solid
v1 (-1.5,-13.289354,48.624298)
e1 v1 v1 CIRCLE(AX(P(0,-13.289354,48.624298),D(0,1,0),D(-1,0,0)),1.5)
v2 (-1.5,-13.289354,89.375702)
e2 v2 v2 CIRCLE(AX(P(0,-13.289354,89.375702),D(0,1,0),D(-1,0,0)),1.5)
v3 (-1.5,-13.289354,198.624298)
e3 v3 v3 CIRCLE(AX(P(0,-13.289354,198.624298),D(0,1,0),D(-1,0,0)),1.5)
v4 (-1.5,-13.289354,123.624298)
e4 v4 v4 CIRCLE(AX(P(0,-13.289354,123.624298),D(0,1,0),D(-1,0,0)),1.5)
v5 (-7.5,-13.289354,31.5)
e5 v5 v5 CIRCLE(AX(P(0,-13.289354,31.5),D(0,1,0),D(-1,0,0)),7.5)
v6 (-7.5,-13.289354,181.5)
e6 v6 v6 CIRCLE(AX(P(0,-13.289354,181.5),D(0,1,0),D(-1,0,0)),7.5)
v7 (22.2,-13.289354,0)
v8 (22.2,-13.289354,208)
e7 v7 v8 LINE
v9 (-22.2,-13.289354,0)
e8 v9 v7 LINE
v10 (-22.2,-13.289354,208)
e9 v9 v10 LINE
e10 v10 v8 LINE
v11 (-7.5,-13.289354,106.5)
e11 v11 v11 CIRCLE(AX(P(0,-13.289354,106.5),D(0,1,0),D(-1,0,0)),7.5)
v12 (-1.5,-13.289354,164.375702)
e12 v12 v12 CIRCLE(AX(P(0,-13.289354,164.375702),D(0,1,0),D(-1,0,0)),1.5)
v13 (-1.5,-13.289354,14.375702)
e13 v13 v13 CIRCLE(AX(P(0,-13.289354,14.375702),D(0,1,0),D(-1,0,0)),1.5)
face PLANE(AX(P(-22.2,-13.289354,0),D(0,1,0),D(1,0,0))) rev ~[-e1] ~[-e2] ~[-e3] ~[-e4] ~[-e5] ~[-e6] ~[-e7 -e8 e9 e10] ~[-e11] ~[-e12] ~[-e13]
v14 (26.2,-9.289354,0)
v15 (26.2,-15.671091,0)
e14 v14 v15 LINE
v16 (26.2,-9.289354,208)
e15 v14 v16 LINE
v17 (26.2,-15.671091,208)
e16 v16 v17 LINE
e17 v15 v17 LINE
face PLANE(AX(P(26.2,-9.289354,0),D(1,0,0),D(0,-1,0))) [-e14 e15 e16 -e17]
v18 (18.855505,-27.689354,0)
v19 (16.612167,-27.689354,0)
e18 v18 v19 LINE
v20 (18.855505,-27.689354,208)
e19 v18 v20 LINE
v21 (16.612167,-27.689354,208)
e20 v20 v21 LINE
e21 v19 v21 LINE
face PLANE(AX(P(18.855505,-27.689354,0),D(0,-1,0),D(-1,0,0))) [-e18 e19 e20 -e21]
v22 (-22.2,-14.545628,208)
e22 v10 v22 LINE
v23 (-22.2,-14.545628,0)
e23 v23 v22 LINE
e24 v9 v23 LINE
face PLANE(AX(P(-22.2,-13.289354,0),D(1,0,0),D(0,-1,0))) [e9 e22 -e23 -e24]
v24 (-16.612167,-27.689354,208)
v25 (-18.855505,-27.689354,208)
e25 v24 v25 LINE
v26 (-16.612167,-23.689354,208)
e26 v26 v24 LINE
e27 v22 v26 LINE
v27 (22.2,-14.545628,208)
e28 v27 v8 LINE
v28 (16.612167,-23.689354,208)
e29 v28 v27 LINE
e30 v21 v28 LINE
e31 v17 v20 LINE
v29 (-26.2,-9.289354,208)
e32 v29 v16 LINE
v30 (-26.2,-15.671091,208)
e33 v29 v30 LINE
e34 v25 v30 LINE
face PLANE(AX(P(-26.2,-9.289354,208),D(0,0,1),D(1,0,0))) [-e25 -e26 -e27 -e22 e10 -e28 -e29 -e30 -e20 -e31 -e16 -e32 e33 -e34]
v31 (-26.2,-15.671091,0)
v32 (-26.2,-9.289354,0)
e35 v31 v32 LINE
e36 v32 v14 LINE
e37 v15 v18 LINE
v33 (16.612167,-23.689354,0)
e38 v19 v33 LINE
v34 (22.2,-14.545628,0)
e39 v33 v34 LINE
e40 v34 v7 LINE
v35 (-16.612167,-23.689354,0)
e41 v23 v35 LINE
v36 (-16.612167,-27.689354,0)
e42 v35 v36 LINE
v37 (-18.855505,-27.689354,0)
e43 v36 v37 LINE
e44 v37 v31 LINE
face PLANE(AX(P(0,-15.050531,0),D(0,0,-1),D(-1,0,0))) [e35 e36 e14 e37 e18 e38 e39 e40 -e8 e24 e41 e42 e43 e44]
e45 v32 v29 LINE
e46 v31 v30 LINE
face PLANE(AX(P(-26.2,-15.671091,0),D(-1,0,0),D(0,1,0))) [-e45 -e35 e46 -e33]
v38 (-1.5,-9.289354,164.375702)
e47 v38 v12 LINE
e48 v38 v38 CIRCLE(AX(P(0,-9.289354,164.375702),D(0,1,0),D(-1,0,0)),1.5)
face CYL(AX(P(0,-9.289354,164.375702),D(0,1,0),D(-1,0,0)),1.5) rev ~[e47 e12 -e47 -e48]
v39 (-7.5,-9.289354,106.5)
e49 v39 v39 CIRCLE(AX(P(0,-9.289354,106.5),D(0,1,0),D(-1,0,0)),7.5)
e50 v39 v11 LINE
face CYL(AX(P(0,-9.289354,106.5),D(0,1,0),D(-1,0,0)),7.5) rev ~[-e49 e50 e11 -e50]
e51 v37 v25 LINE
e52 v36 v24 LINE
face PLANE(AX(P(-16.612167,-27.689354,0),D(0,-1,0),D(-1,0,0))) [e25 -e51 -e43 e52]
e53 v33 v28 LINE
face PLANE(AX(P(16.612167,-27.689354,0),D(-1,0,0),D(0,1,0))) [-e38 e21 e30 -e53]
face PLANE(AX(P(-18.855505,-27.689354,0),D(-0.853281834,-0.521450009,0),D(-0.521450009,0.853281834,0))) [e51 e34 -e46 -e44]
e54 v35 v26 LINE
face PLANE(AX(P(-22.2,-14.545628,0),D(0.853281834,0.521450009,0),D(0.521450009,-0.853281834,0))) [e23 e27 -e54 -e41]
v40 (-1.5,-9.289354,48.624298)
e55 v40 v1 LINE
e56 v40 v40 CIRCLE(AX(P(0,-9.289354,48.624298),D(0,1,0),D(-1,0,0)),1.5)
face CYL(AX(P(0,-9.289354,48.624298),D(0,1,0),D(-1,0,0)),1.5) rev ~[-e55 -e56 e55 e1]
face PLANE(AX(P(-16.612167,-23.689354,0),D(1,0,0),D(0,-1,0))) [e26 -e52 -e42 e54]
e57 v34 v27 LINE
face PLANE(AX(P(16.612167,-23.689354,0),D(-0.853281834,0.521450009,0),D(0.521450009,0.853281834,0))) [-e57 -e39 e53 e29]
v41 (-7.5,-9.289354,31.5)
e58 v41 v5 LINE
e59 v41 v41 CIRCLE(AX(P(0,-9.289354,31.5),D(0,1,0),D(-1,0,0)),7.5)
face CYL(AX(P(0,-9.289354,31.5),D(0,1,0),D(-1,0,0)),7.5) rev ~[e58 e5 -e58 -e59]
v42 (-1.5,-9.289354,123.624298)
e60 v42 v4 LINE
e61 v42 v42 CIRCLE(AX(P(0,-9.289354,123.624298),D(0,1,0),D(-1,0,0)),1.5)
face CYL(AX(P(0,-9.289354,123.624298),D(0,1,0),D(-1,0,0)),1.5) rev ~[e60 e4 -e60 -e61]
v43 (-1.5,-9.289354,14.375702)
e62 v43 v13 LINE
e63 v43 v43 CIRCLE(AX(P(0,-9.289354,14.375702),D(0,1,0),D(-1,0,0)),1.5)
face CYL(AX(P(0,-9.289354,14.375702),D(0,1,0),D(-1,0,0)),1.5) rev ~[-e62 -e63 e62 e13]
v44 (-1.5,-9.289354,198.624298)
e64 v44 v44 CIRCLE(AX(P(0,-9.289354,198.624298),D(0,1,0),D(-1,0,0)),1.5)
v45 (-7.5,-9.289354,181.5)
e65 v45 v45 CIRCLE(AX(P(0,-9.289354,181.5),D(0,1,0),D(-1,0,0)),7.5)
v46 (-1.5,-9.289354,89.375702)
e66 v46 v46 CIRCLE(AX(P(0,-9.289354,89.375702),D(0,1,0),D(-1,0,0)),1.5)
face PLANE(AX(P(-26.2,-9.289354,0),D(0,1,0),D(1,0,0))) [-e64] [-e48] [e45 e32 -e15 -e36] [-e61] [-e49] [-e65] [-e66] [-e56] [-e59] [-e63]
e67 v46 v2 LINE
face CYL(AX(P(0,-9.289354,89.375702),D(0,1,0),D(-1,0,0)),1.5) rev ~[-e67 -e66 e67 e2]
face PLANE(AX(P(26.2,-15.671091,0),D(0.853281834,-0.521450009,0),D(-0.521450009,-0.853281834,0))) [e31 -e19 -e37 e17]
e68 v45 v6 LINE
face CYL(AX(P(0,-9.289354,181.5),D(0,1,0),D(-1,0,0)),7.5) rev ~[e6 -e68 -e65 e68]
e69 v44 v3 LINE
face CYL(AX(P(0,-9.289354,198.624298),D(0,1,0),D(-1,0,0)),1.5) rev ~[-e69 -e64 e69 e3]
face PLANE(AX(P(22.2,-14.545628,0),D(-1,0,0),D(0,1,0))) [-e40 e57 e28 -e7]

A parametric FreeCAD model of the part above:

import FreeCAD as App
import Part
import Sketcher
from FreeCAD import Vector
Q = App.Units.Quantity

doc = App.newDocument("Part")
body = doc.addObject("PartDesign::Body", "Body")

sketch1 = body.newObject("Sketcher::SketchObject", "Sketch")
sketch1.AttachmentSupport = (doc.getObject("XY_Plane"), [""])
sketch1.MapMode = "FlatFace"
sketch1.addGeometry([
    Part.LineSegment(Vector(-22.2, -13.3, 0), Vector(22.2, -13.3, 0)),
    Part.LineSegment(Vector(22.2, -13.3, 0), Vector(22.2, -14.5, 0)),
    Part.LineSegment(Vector(22.2, -14.5, 0), Vector(16.6, -23.7, 0)),
    Part.LineSegment(Vector(16.6, -23.7, 0), Vector(16.6, -27.7, 0)),
    Part.LineSegment(Vector(16.6, -27.7, 0), Vector(18.9, -27.7, 0)),
    Part.LineSegment(Vector(18.9, -27.7, 0), Vector(26.2, -15.7, 0)),
    Part.LineSegment(Vector(26.2, -15.7, 0), Vector(26.2, -9.3, 0)),
    Part.LineSegment(Vector(26.2, -9.3, 0), Vector(-26.2, -9.3, 0)),
    Part.LineSegment(Vector(-26.2, -9.3, 0), Vector(-26.2, -15.7, 0)),
    Part.LineSegment(Vector(-26.2, -15.7, 0), Vector(-18.9, -27.7, 0)),
    Part.LineSegment(Vector(-18.9, -27.7, 0), Vector(-16.6, -27.7, 0)),
    Part.LineSegment(Vector(-16.6, -27.7, 0), Vector(-16.6, -23.7, 0)),
    Part.LineSegment(Vector(-16.6, -23.7, 0), Vector(-22.2, -14.5, 0)),
    Part.LineSegment(Vector(-22.2, -14.5, 0), Vector(-22.2, -13.3, 0)),
], False)
sketch1.addConstraint([
    Sketcher.Constraint("Coincident", 0, 2, 1, 1),
    Sketcher.Constraint("Coincident", 1, 2, 2, 1),
    Sketcher.Constraint("Coincident", 2, 2, 3, 1),
    Sketcher.Constraint("Coincident", 3, 2, 4, 1),
    Sketcher.Constraint("Coincident", 4, 2, 5, 1),
    Sketcher.Constraint("Coincident", 5, 2, 6, 1),
    Sketcher.Constraint("Coincident", 6, 2, 7, 1),
    Sketcher.Constraint("Coincident", 7, 2, 8, 1),
    Sketcher.Constraint("Coincident", 8, 2, 9, 1),
    Sketcher.Constraint("Coincident", 9, 2, 10, 1),
    Sketcher.Constraint("Coincident", 10, 2, 11, 1),
    Sketcher.Constraint("Coincident", 11, 2, 12, 1),
    Sketcher.Constraint("Coincident", 12, 2, 13, 1),
    Sketcher.Constraint("Coincident", 13, 2, 0, 1),
    Sketcher.Constraint("Horizontal", 0),
    Sketcher.Constraint("Vertical", 1),
    Sketcher.Constraint("Vertical", 3),
    Sketcher.Constraint("Horizontal", 4),
    Sketcher.Constraint("Vertical", 6),
    Sketcher.Constraint("Horizontal", 7),
    Sketcher.Constraint("Vertical", 8),
    Sketcher.Constraint("Horizontal", 10),
    Sketcher.Constraint("Vertical", 11),
    Sketcher.Constraint("Vertical", 13),
    Sketcher.Constraint("Symmetric", 5, 2, 8, 2, -2),
    Sketcher.Constraint("Symmetric", 4, 2, 9, 2, -2),
    Sketcher.Constraint("Symmetric", 2, 2, 11, 2, -2),
    Sketcher.Constraint("Symmetric", 1, 2, 12, 2, -2),
    Sketcher.Constraint("Parallel", 2, 5),
    Sketcher.Constraint("DistanceY", 3, 2, 3, 1, Q("4 mm")),
    Sketcher.Constraint("DistanceX", 0, 1, 0, 2, Q("44.4 mm")),
    Sketcher.Constraint("DistanceX", 7, 2, 7, 1, Q("52.4 mm")),
    Sketcher.Constraint("DistanceY", 0, 2, 6, 2, Q("4 mm")),
    Sketcher.Constraint("DistanceY", 2, 2, 0, 2, Q("10.4 mm")),
    Sketcher.Constraint("DistanceX", 4, 1, 4, 2, Q("2.243338 mm")),
    Sketcher.Constraint("Distance", 2, Q("10.715952 mm")),
    Sketcher.Constraint("DistanceY", 1, 2, 1, 1, Q("1.256273 mm")),
    Sketcher.Constraint("DistanceY", 5, 2, -1, 1, Q("15.671091 mm")),
])
pad1 = body.newObject("PartDesign::Pad", "Pad")
pad1.Profile = sketch1
pad1.Length = 213

sketch2 = body.newObject("Sketcher::SketchObject", "Sketch001")
sketch2.AttachmentSupport = (doc.getObject("XZ_Plane"), [""])
sketch2.MapMode = "FlatFace"
sketch2.AttachmentOffset = App.Placement(Vector(0, 0, 9.289354), App.Rotation())
sketch2.addGeometry([
    Part.Circle(Vector(0, 32, 0), Vector(0, 0, 1), 8),
    Part.Circle(Vector(0, 106, 0), Vector(0, 0, 1), 8),
    Part.Circle(Vector(0, 182, 0), Vector(0, 0, 1), 8),
], False)
sketch2.addConstraint([
    Sketcher.Constraint("Equal", 0, 1),
    Sketcher.Constraint("Equal", 1, 2),
    Sketcher.Constraint("PointOnObject", 0, 3, -2),
    Sketcher.Constraint("PointOnObject", 1, 3, -2),
    Sketcher.Constraint("PointOnObject", 2, 3, -2),
    Sketcher.Constraint("Diameter", 0, Q("15 mm")),
    Sketcher.Constraint("DistanceY", 0, 3, 1, 3, Q("75 mm")),
    Sketcher.Constraint("DistanceY", 1, 3, 2, 3, Q("75 mm")),
    Sketcher.Constraint("DistanceY", -1, 1, 0, 3, Q("31.5 mm")),
])
pocket1 = body.newObject("PartDesign::Pocket", "Pocket")
pocket1.Profile = sketch2
pocket1.Length = 213
pocket1.Reversed = True

sketch3 = body.newObject("Sketcher::SketchObject", "Sketch002")
sketch3.AttachmentSupport = (doc.getObject("XZ_Plane"), [""])
sketch3.MapMode = "FlatFace"
sketch3.AttachmentOffset = App.Placement(Vector(0, 0, 9.289354), App.Rotation())
sketch3.addGeometry([
    Part.Circle(Vector(0, 198.6, 0), Vector(0, 0, 1), 1.5),
    Part.Circle(Vector(0, 164.4, 0), Vector(0, 0, 1), 1.5),
], False)
sketch3.addConstraint([
    Sketcher.Constraint("Equal", 0, 1),
    Sketcher.Constraint("PointOnObject", 0, 3, -2),
    Sketcher.Constraint("PointOnObject", 1, 3, -2),
    Sketcher.Constraint("Diameter", 0, Q("3 mm")),
    Sketcher.Constraint("DistanceY", -1, 1, 0, 3, Q("198.624298 mm")),
    Sketcher.Constraint("DistanceY", -1, 1, 1, 3, Q("164.375702 mm")),
])
pocket2 = body.newObject("PartDesign::Pocket", "Pocket001")
pocket2.Profile = sketch3
pocket2.Length = 10
pocket2.Reversed = True
doc.recompute()

linearpattern = body.newObject("PartDesign::LinearPattern", "LinearPattern")
linearpattern.Originals = [pocket2]
linearpattern.Direction = (doc.getObject("Z_Axis"), [""])
linearpattern.Mode = "offset"
linearpattern.Offset = 75
linearpattern.Occurrences = 3
linearpattern.Reversed = True
body.Tip = linearpattern

sketch4 = body.newObject("Sketcher::SketchObject", "Sketch003")
sketch4.AttachmentSupport = (doc.getObject("XZ_Plane"), [""])
sketch4.MapMode = "FlatFace"
sketch4.AttachmentOffset = App.Placement(Vector(0, 0, 9.289354), App.Rotation())
sketch4.addGeometry([
    Part.LineSegment(Vector(-26, 208, 0), Vector(-26, 213, 0)),
    Part.LineSegment(Vector(-26, 213, 0), Vector(26, 213, 0)),
    Part.LineSegment(Vector(26, 213, 0), Vector(26, 208, 0)),
    Part.LineSegment(Vector(26, 208, 0), Vector(-26, 208, 0)),
], False)
sketch4.addConstraint([
    Sketcher.Constraint("Coincident", 0, 2, 1, 1),
    Sketcher.Constraint("Coincident", 1, 2, 2, 1),
    Sketcher.Constraint("Coincident", 2, 2, 3, 1),
    Sketcher.Constraint("Coincident", 3, 2, 0, 1),
    Sketcher.Constraint("Vertical", 0),
    Sketcher.Constraint("Horizontal", 1),
    Sketcher.Constraint("Vertical", 2),
    Sketcher.Constraint("Horizontal", 3),
    Sketcher.Constraint("DistanceY", 0, 1, 0, 2, Q("5 mm")),
    Sketcher.Constraint("DistanceX", 1, 1, 1, 2, Q("52.4 mm")),
    Sketcher.Constraint("DistanceY", -1, 1, 0, 2, Q("213 mm")),
    Sketcher.Constraint("DistanceX", 0, 2, -1, 1, Q("26.2 mm")),
])
pocket3 = body.newObject("PartDesign::Pocket", "Pocket002")
pocket3.Profile = sketch4
pocket3.Length = 30.5
pocket3.Reversed = True

doc.recompute()
